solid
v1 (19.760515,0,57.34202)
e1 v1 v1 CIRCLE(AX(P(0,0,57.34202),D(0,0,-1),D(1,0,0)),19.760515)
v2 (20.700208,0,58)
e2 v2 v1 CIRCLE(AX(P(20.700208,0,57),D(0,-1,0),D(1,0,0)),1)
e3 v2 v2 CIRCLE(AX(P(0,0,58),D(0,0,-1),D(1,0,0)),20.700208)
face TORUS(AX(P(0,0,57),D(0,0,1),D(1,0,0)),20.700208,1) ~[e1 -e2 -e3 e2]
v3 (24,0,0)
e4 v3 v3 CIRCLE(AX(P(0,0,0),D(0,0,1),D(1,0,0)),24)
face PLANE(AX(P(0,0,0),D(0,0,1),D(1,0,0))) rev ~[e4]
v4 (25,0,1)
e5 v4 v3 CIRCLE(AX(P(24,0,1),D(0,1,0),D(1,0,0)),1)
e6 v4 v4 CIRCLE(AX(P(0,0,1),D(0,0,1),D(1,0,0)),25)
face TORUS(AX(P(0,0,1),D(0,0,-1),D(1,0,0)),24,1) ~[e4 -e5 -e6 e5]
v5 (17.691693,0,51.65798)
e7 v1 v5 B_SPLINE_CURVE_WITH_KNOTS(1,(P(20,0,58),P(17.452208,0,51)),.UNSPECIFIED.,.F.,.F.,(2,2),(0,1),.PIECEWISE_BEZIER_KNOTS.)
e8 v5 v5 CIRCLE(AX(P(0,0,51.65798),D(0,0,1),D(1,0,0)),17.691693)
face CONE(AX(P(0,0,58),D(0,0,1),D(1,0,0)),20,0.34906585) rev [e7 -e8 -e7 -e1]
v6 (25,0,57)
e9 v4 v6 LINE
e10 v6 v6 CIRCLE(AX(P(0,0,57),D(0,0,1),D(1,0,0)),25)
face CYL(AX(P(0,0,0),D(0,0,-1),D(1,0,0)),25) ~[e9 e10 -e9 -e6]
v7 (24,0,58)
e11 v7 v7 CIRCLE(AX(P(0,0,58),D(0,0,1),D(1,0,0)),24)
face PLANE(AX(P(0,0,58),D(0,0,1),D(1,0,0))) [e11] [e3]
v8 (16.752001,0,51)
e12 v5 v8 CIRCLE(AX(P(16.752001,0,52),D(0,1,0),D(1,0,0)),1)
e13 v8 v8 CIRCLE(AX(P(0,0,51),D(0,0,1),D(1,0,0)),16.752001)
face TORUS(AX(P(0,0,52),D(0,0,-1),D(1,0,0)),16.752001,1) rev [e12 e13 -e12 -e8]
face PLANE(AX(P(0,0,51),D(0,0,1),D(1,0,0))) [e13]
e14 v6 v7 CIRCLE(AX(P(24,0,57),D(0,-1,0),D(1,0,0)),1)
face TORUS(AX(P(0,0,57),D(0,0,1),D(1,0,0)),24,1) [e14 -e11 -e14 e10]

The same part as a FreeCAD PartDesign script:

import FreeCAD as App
import Part
import Sketcher
from FreeCAD import Vector


def edges_at(feature, points):
    """Names of the edges that pass closest to the given points."""
    edges = feature.Shape.Edges
    near = lambda p: min(range(len(edges)), key=lambda i: edges[i].distToShape(Part.Vertex(*p))[0])
    return sorted({f"Edge{near(p) + 1}" for p in points})

doc = App.newDocument("Part")
body = doc.addObject("PartDesign::Body", "Body")

# Sketch on XY plane
sketch1 = body.newObject("Sketcher::SketchObject", "Sketch")
sketch1.AttachmentSupport = (doc.getObject("XY_Plane"), [""])
sketch1.MapMode = "FlatFace"
sketch1.addGeometry(Part.Circle(Vector(0, 0, 0), Vector(0, 0, 1), 25), False)
sketch1.addConstraint([
    Sketcher.Constraint("Coincident", 0, 3, -1, 1),
    Sketcher.Constraint("Diameter", 0, 50.0),
])
pad1 = body.newObject("PartDesign::Pad", "Pad")
pad1.Profile = sketch1
pad1.Length = 58

# Sketch on XY plane
sketch2 = body.newObject("Sketcher::SketchObject", "Sketch001")
sketch2.AttachmentSupport = (doc.getObject("XY_Plane"), [""])
sketch2.MapMode = "FlatFace"
sketch2.AttachmentOffset = App.Placement(Vector(0, 0, 58), App.Rotation())
sketch2.addGeometry(Part.Circle(Vector(0, 0, 0), Vector(0, 0, 1), 20), False)
sketch2.addConstraint([
    Sketcher.Constraint("Coincident", 0, 3, -1, 1),
    Sketcher.Constraint("Diameter", 0, 40.0),
])
pocket1 = body.newObject("PartDesign::Pocket", "Pocket")
pocket1.Profile = sketch2
pocket1.Length = 7
pocket1.TaperAngle = -20
doc.recompute()

fillet = body.newObject("PartDesign::Fillet", "Fillet")
fillet.Base = (pocket1, edges_at(pocket1, [
    (-25, 0, 58),
    (-25, 0, 0),
    (-20, 0, 58),
    (-17.452, 0, 51),
]))
fillet.Radius = 1

doc.recompute()
